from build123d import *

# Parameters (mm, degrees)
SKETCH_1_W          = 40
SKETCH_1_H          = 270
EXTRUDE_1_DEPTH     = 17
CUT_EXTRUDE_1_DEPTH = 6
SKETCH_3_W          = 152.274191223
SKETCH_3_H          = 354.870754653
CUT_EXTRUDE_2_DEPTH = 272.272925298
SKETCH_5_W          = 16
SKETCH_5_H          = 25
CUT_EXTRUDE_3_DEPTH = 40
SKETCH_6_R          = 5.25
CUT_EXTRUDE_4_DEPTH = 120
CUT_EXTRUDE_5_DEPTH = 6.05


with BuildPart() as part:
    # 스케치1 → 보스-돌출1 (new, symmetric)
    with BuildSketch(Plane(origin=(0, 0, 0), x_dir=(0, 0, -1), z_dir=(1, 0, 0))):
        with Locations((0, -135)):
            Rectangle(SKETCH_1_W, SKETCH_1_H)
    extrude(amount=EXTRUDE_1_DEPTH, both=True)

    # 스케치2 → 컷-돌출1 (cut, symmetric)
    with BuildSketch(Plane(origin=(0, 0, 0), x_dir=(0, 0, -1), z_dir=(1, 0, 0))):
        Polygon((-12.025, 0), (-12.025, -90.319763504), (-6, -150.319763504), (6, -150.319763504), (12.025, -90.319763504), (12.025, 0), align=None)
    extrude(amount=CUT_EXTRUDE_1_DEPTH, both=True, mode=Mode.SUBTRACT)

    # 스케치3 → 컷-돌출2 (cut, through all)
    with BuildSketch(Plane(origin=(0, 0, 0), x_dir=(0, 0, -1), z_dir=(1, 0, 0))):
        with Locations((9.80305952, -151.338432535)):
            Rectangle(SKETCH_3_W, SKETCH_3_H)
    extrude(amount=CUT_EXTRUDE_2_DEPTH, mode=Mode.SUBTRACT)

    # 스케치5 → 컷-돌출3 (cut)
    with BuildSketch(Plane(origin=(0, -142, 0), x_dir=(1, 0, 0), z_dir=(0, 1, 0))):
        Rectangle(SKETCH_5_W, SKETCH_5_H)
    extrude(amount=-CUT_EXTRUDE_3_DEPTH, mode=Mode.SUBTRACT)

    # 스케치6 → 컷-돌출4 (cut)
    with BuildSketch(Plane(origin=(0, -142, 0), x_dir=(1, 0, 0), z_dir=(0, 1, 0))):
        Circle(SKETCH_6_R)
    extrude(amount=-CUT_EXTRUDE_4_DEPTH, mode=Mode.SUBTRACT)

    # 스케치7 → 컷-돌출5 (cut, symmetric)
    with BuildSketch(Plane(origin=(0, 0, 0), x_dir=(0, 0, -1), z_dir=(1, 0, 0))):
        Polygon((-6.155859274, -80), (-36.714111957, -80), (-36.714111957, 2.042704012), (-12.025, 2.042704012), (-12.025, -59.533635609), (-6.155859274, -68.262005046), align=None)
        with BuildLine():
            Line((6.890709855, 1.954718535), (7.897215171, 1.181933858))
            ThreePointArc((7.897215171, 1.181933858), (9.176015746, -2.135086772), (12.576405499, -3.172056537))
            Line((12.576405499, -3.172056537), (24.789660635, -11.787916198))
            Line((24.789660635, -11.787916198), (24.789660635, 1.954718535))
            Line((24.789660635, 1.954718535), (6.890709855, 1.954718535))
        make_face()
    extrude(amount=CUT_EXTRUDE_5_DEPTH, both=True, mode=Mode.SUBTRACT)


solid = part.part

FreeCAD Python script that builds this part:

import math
import FreeCAD as App
import Part
import Sketcher
Q = App.Units.Quantity


def add_polygon(sketch, points):
    """Adds a closed chain of lines whose ends are joined by coincident constraints."""
    first, n = sketch.GeometryCount, len(points)
    for a, b in zip(points, points[1:] + points[:1]):
        sketch.addGeometry(Part.LineSegment(App.Vector(*a, 0), App.Vector(*b, 0)), False)
    for i in range(n):
        sketch.addConstraint(Sketcher.Constraint("Coincident", first + i, 2, first + (i + 1) % n, 1))

doc = App.newDocument("Part")
body = doc.addObject("PartDesign::Body", "Body")

# Sketch on YZ plane
sketch1 = body.newObject("Sketcher::SketchObject", "Sketch")
sketch1.AttachmentSupport = (doc.getObject("YZ_Plane"), [""])
sketch1.MapMode = "FlatFace"
add_polygon(sketch1, [(0, 20), (-270, 20), (-270, -20), (0, -20)])  # lines 0-3
sketch1.addConstraint([
    Sketcher.Constraint("Horizontal", 0),
    Sketcher.Constraint("Vertical", 1),
    Sketcher.Constraint("Horizontal", 2),
    Sketcher.Constraint("Vertical", 3),
    Sketcher.Constraint("Symmetric", 2, 2, 3, 2, -1, 1),
    Sketcher.Constraint("DistanceX", 0, 2, 0, 1, Q("270 mm")),
    Sketcher.Constraint("DistanceY", 1, 2, 1, 1, Q("40 mm")),
])
pad1 = body.newObject("PartDesign::Pad", "Pad")
pad1.Profile = sketch1
pad1.Length = 34
pad1.Midplane = True

# Sketch on YZ plane
sketch2 = body.newObject("Sketcher::SketchObject", "Sketch001")
sketch2.AttachmentSupport = (doc.getObject("YZ_Plane"), [""])
sketch2.MapMode = "FlatFace"
add_polygon(sketch2, [(0, 12), (-90, 12), (-150, 6), (-150, -6), (-90, -12), (0, -12)])  # lines 0-5
sketch2.addConstraint([
    Sketcher.Constraint("Horizontal", 0),
    Sketcher.Constraint("Vertical", 2),
    Sketcher.Constraint("Horizontal", 4),
    Sketcher.Constraint("Vertical", 5),
    Sketcher.Constraint("Symmetric", 4, 2, 5, 2, -1, 1),
    Sketcher.Constraint("Vertical", 0, 2, 3, 2),
    Sketcher.Constraint("Equal", 1, 3),
    Sketcher.Constraint("DistanceY", 2, 2, 2, 1, Q("12 mm")),
    Sketcher.Constraint("DistanceX", 1, 2, 0, 2, Q("60 mm")),
    Sketcher.Constraint("DistanceY", 5, 1, 5, 2, Q("24.05 mm")),
    Sketcher.Constraint("DistanceX", 0, 2, 0, 1, Q("90.319764 mm")),
])
pocket1 = body.newObject("PartDesign::Pocket", "Pocket")
pocket1.Profile = sketch2
pocket1.Length = 12
pocket1.Midplane = True

# Sketch on YZ plane
sketch3 = body.newObject("Sketcher::SketchObject", "Sketch002")
sketch3.AttachmentSupport = (doc.getObject("YZ_Plane"), [""])
sketch3.MapMode = "FlatFace"
add_polygon(sketch3, [(26, 66), (-329, 66), (-329, -86), (26, -86)])  # lines 0-3
sketch3.addConstraint([
    Sketcher.Constraint("Horizontal", 0),
    Sketcher.Constraint("Vertical", 1),
    Sketcher.Constraint("Horizontal", 2),
    Sketcher.Constraint("Vertical", 3),
    Sketcher.Constraint("DistanceY", 1, 2, 1, 1, Q("152.274191 mm")),
    Sketcher.Constraint("DistanceX", 0, 2, 0, 1, Q("354.870755 mm")),
    Sketcher.Constraint("DistanceX", 0, 2, -1, 1, Q("328.77381 mm")),
    Sketcher.Constraint("DistanceY", -1, 1, 0, 2, Q("66.334036 mm")),
])
pocket2 = body.newObject("PartDesign::Pocket", "Pocket001")
pocket2.Profile = sketch3
pocket2.Type = "ThroughAll"
pocket2.Reversed = True

# Sketch on XZ plane
sketch4 = body.newObject("Sketcher::SketchObject", "Sketch003")
sketch4.AttachmentSupport = (doc.getObject("XZ_Plane"), [""])
sketch4.MapMode = "FlatFace"
sketch4.AttachmentOffset = App.Placement(App.Vector(0, 0, 142), App.Rotation())
add_polygon(sketch4, [(-8, -12), (-8, 12), (8, 12), (8, -12)])  # lines 0-3
sketch4.addConstraint([
    Sketcher.Constraint("Vertical", 0),
    Sketcher.Constraint("Horizontal", 1),
    Sketcher.Constraint("Vertical", 2),
    Sketcher.Constraint("Horizontal", 3),
    Sketcher.Constraint("Symmetric", 0, 2, 2, 2, -1, 1),
    Sketcher.Constraint("DistanceX", 1, 1, 1, 2, Q("16 mm")),
    Sketcher.Constraint("DistanceY", 0, 1, 0, 2, Q("25 mm")),
])
pocket3 = body.newObject("PartDesign::Pocket", "Pocket002")
pocket3.Profile = sketch4
pocket3.Length = 40
pocket3.Reversed = True

# Sketch on XZ plane
sketch5 = body.newObject("Sketcher::SketchObject", "Sketch004")
sketch5.AttachmentSupport = (doc.getObject("XZ_Plane"), [""])
sketch5.MapMode = "FlatFace"
sketch5.AttachmentOffset = App.Placement(App.Vector(0, 0, 142), App.Rotation())
sketch5.addGeometry(Part.Circle(App.Vector(0, 0, 0), App.Vector(0, 0, 1), 5), False)
sketch5.addConstraint([
    Sketcher.Constraint("Coincident", 0, 3, -1, 1),
    Sketcher.Constraint("Diameter", 0, Q("10.5 mm")),
])
pocket4 = body.newObject("PartDesign::Pocket", "Pocket003")
pocket4.Profile = sketch5
pocket4.Length = 120
pocket4.Reversed = True

# Sketch on YZ plane
sketch6 = body.newObject("Sketcher::SketchObject", "Sketch005")
sketch6.AttachmentSupport = (doc.getObject("YZ_Plane"), [""])
sketch6.MapMode = "FlatFace"
add_polygon(sketch6, [(-80, 36.7), (-80, 6.2), (-68.3, 6.2), (-59.5, 12), (2, 12), (2, 36.7)])  # lines 0-5
sketch6.addGeometry(Part.LineSegment(App.Vector(2, -6.9, 0), App.Vector(1.2, -7.9, 0)), False)  # 6
sketch6.addGeometry(Part.ArcOfCircle(Part.Circle(App.Vector(0.8, -11.9, 0), App.Vector(0, 0, 1), 4.1), math.radians(85), math.radians(189)), False)  # 7
sketch6.addGeometry(Part.LineSegment(App.Vector(-3.2, -12.6, 0), App.Vector(-11.8, -24.8, 0)), False)  # 8
sketch6.addGeometry(Part.LineSegment(App.Vector(-11.8, -24.8, 0), App.Vector(2, -24.8, 0)), False)  # 9
sketch6.addGeometry(Part.LineSegment(App.Vector(2, -24.8, 0), App.Vector(2, -6.9, 0)), False)  # 10
sketch6.addConstraint([
    Sketcher.Constraint("Coincident", 6, 2, 7, 1),
    Sketcher.Constraint("Coincident", 7, 2, 8, 1),
    Sketcher.Constraint("Coincident", 8, 2, 9, 1),
    Sketcher.Constraint("Coincident", 9, 2, 10, 1),
    Sketcher.Constraint("Coincident", 10, 2, 6, 1),
    Sketcher.Constraint("Vertical", 0),
    Sketcher.Constraint("Horizontal", 1),
    Sketcher.Constraint("Horizontal", 3),
    Sketcher.Constraint("Vertical", 4),
    Sketcher.Constraint("Horizontal", 5),
    Sketcher.Constraint("Horizontal", 9),
    Sketcher.Constraint("Vertical", 10),
    Sketcher.Constraint("DistanceX", 0, 2, -1, 1, Q("80 mm")),
    Sketcher.Constraint("Radius", 7, Q("4.057851 mm")),
    Sketcher.Constraint("DistanceY", -1, 1, 2, 2, Q("12.025 mm")),
    Sketcher.Constraint("DistanceX", 3, 1, 3, 2, Q("61.57634 mm")),
    Sketcher.Constraint("DistanceY", 4, 1, 4, 2, Q("24.689112 mm")),
    Sketcher.Constraint("DistanceY", 10, 1, 10, 2, Q("17.898951 mm")),
    Sketcher.Constraint("DistanceY", 8, 2, 7, 3, Q("12.849399 mm")),
    Sketcher.Constraint("DistanceX", 7, 3, 9, 2, Q("1.119098 mm")),
    Sketcher.Constraint("Distance", 2, Q("10.518139 mm")),
    Sketcher.Constraint("Distance", 8, Q("14.946459 mm")),
    Sketcher.Constraint("DistanceX", 1, 1, 1, 2, Q("11.737995 mm")),
    Sketcher.Constraint("DistanceX", 5, 2, 5, 1, Q("82.042704 mm")),
    Sketcher.Constraint("DistanceX", 9, 1, 9, 2, Q("13.742635 mm")),
    Sketcher.Constraint("DistanceX", -1, 1, 7, 3, Q("0.83562 mm")),
    Sketcher.Constraint("DistanceY", 7, 3, -1, 1, Q("11.940261 mm")),
    Sketcher.Constraint("DistanceX", 6, 2, 3, 2, Q("0.86077 mm")),
])
pocket5 = body.newObject("PartDesign::Pocket", "Pocket004")
pocket5.Profile = sketch6
pocket5.Length = 12.1
pocket5.Midplane = True

doc.recompute()
